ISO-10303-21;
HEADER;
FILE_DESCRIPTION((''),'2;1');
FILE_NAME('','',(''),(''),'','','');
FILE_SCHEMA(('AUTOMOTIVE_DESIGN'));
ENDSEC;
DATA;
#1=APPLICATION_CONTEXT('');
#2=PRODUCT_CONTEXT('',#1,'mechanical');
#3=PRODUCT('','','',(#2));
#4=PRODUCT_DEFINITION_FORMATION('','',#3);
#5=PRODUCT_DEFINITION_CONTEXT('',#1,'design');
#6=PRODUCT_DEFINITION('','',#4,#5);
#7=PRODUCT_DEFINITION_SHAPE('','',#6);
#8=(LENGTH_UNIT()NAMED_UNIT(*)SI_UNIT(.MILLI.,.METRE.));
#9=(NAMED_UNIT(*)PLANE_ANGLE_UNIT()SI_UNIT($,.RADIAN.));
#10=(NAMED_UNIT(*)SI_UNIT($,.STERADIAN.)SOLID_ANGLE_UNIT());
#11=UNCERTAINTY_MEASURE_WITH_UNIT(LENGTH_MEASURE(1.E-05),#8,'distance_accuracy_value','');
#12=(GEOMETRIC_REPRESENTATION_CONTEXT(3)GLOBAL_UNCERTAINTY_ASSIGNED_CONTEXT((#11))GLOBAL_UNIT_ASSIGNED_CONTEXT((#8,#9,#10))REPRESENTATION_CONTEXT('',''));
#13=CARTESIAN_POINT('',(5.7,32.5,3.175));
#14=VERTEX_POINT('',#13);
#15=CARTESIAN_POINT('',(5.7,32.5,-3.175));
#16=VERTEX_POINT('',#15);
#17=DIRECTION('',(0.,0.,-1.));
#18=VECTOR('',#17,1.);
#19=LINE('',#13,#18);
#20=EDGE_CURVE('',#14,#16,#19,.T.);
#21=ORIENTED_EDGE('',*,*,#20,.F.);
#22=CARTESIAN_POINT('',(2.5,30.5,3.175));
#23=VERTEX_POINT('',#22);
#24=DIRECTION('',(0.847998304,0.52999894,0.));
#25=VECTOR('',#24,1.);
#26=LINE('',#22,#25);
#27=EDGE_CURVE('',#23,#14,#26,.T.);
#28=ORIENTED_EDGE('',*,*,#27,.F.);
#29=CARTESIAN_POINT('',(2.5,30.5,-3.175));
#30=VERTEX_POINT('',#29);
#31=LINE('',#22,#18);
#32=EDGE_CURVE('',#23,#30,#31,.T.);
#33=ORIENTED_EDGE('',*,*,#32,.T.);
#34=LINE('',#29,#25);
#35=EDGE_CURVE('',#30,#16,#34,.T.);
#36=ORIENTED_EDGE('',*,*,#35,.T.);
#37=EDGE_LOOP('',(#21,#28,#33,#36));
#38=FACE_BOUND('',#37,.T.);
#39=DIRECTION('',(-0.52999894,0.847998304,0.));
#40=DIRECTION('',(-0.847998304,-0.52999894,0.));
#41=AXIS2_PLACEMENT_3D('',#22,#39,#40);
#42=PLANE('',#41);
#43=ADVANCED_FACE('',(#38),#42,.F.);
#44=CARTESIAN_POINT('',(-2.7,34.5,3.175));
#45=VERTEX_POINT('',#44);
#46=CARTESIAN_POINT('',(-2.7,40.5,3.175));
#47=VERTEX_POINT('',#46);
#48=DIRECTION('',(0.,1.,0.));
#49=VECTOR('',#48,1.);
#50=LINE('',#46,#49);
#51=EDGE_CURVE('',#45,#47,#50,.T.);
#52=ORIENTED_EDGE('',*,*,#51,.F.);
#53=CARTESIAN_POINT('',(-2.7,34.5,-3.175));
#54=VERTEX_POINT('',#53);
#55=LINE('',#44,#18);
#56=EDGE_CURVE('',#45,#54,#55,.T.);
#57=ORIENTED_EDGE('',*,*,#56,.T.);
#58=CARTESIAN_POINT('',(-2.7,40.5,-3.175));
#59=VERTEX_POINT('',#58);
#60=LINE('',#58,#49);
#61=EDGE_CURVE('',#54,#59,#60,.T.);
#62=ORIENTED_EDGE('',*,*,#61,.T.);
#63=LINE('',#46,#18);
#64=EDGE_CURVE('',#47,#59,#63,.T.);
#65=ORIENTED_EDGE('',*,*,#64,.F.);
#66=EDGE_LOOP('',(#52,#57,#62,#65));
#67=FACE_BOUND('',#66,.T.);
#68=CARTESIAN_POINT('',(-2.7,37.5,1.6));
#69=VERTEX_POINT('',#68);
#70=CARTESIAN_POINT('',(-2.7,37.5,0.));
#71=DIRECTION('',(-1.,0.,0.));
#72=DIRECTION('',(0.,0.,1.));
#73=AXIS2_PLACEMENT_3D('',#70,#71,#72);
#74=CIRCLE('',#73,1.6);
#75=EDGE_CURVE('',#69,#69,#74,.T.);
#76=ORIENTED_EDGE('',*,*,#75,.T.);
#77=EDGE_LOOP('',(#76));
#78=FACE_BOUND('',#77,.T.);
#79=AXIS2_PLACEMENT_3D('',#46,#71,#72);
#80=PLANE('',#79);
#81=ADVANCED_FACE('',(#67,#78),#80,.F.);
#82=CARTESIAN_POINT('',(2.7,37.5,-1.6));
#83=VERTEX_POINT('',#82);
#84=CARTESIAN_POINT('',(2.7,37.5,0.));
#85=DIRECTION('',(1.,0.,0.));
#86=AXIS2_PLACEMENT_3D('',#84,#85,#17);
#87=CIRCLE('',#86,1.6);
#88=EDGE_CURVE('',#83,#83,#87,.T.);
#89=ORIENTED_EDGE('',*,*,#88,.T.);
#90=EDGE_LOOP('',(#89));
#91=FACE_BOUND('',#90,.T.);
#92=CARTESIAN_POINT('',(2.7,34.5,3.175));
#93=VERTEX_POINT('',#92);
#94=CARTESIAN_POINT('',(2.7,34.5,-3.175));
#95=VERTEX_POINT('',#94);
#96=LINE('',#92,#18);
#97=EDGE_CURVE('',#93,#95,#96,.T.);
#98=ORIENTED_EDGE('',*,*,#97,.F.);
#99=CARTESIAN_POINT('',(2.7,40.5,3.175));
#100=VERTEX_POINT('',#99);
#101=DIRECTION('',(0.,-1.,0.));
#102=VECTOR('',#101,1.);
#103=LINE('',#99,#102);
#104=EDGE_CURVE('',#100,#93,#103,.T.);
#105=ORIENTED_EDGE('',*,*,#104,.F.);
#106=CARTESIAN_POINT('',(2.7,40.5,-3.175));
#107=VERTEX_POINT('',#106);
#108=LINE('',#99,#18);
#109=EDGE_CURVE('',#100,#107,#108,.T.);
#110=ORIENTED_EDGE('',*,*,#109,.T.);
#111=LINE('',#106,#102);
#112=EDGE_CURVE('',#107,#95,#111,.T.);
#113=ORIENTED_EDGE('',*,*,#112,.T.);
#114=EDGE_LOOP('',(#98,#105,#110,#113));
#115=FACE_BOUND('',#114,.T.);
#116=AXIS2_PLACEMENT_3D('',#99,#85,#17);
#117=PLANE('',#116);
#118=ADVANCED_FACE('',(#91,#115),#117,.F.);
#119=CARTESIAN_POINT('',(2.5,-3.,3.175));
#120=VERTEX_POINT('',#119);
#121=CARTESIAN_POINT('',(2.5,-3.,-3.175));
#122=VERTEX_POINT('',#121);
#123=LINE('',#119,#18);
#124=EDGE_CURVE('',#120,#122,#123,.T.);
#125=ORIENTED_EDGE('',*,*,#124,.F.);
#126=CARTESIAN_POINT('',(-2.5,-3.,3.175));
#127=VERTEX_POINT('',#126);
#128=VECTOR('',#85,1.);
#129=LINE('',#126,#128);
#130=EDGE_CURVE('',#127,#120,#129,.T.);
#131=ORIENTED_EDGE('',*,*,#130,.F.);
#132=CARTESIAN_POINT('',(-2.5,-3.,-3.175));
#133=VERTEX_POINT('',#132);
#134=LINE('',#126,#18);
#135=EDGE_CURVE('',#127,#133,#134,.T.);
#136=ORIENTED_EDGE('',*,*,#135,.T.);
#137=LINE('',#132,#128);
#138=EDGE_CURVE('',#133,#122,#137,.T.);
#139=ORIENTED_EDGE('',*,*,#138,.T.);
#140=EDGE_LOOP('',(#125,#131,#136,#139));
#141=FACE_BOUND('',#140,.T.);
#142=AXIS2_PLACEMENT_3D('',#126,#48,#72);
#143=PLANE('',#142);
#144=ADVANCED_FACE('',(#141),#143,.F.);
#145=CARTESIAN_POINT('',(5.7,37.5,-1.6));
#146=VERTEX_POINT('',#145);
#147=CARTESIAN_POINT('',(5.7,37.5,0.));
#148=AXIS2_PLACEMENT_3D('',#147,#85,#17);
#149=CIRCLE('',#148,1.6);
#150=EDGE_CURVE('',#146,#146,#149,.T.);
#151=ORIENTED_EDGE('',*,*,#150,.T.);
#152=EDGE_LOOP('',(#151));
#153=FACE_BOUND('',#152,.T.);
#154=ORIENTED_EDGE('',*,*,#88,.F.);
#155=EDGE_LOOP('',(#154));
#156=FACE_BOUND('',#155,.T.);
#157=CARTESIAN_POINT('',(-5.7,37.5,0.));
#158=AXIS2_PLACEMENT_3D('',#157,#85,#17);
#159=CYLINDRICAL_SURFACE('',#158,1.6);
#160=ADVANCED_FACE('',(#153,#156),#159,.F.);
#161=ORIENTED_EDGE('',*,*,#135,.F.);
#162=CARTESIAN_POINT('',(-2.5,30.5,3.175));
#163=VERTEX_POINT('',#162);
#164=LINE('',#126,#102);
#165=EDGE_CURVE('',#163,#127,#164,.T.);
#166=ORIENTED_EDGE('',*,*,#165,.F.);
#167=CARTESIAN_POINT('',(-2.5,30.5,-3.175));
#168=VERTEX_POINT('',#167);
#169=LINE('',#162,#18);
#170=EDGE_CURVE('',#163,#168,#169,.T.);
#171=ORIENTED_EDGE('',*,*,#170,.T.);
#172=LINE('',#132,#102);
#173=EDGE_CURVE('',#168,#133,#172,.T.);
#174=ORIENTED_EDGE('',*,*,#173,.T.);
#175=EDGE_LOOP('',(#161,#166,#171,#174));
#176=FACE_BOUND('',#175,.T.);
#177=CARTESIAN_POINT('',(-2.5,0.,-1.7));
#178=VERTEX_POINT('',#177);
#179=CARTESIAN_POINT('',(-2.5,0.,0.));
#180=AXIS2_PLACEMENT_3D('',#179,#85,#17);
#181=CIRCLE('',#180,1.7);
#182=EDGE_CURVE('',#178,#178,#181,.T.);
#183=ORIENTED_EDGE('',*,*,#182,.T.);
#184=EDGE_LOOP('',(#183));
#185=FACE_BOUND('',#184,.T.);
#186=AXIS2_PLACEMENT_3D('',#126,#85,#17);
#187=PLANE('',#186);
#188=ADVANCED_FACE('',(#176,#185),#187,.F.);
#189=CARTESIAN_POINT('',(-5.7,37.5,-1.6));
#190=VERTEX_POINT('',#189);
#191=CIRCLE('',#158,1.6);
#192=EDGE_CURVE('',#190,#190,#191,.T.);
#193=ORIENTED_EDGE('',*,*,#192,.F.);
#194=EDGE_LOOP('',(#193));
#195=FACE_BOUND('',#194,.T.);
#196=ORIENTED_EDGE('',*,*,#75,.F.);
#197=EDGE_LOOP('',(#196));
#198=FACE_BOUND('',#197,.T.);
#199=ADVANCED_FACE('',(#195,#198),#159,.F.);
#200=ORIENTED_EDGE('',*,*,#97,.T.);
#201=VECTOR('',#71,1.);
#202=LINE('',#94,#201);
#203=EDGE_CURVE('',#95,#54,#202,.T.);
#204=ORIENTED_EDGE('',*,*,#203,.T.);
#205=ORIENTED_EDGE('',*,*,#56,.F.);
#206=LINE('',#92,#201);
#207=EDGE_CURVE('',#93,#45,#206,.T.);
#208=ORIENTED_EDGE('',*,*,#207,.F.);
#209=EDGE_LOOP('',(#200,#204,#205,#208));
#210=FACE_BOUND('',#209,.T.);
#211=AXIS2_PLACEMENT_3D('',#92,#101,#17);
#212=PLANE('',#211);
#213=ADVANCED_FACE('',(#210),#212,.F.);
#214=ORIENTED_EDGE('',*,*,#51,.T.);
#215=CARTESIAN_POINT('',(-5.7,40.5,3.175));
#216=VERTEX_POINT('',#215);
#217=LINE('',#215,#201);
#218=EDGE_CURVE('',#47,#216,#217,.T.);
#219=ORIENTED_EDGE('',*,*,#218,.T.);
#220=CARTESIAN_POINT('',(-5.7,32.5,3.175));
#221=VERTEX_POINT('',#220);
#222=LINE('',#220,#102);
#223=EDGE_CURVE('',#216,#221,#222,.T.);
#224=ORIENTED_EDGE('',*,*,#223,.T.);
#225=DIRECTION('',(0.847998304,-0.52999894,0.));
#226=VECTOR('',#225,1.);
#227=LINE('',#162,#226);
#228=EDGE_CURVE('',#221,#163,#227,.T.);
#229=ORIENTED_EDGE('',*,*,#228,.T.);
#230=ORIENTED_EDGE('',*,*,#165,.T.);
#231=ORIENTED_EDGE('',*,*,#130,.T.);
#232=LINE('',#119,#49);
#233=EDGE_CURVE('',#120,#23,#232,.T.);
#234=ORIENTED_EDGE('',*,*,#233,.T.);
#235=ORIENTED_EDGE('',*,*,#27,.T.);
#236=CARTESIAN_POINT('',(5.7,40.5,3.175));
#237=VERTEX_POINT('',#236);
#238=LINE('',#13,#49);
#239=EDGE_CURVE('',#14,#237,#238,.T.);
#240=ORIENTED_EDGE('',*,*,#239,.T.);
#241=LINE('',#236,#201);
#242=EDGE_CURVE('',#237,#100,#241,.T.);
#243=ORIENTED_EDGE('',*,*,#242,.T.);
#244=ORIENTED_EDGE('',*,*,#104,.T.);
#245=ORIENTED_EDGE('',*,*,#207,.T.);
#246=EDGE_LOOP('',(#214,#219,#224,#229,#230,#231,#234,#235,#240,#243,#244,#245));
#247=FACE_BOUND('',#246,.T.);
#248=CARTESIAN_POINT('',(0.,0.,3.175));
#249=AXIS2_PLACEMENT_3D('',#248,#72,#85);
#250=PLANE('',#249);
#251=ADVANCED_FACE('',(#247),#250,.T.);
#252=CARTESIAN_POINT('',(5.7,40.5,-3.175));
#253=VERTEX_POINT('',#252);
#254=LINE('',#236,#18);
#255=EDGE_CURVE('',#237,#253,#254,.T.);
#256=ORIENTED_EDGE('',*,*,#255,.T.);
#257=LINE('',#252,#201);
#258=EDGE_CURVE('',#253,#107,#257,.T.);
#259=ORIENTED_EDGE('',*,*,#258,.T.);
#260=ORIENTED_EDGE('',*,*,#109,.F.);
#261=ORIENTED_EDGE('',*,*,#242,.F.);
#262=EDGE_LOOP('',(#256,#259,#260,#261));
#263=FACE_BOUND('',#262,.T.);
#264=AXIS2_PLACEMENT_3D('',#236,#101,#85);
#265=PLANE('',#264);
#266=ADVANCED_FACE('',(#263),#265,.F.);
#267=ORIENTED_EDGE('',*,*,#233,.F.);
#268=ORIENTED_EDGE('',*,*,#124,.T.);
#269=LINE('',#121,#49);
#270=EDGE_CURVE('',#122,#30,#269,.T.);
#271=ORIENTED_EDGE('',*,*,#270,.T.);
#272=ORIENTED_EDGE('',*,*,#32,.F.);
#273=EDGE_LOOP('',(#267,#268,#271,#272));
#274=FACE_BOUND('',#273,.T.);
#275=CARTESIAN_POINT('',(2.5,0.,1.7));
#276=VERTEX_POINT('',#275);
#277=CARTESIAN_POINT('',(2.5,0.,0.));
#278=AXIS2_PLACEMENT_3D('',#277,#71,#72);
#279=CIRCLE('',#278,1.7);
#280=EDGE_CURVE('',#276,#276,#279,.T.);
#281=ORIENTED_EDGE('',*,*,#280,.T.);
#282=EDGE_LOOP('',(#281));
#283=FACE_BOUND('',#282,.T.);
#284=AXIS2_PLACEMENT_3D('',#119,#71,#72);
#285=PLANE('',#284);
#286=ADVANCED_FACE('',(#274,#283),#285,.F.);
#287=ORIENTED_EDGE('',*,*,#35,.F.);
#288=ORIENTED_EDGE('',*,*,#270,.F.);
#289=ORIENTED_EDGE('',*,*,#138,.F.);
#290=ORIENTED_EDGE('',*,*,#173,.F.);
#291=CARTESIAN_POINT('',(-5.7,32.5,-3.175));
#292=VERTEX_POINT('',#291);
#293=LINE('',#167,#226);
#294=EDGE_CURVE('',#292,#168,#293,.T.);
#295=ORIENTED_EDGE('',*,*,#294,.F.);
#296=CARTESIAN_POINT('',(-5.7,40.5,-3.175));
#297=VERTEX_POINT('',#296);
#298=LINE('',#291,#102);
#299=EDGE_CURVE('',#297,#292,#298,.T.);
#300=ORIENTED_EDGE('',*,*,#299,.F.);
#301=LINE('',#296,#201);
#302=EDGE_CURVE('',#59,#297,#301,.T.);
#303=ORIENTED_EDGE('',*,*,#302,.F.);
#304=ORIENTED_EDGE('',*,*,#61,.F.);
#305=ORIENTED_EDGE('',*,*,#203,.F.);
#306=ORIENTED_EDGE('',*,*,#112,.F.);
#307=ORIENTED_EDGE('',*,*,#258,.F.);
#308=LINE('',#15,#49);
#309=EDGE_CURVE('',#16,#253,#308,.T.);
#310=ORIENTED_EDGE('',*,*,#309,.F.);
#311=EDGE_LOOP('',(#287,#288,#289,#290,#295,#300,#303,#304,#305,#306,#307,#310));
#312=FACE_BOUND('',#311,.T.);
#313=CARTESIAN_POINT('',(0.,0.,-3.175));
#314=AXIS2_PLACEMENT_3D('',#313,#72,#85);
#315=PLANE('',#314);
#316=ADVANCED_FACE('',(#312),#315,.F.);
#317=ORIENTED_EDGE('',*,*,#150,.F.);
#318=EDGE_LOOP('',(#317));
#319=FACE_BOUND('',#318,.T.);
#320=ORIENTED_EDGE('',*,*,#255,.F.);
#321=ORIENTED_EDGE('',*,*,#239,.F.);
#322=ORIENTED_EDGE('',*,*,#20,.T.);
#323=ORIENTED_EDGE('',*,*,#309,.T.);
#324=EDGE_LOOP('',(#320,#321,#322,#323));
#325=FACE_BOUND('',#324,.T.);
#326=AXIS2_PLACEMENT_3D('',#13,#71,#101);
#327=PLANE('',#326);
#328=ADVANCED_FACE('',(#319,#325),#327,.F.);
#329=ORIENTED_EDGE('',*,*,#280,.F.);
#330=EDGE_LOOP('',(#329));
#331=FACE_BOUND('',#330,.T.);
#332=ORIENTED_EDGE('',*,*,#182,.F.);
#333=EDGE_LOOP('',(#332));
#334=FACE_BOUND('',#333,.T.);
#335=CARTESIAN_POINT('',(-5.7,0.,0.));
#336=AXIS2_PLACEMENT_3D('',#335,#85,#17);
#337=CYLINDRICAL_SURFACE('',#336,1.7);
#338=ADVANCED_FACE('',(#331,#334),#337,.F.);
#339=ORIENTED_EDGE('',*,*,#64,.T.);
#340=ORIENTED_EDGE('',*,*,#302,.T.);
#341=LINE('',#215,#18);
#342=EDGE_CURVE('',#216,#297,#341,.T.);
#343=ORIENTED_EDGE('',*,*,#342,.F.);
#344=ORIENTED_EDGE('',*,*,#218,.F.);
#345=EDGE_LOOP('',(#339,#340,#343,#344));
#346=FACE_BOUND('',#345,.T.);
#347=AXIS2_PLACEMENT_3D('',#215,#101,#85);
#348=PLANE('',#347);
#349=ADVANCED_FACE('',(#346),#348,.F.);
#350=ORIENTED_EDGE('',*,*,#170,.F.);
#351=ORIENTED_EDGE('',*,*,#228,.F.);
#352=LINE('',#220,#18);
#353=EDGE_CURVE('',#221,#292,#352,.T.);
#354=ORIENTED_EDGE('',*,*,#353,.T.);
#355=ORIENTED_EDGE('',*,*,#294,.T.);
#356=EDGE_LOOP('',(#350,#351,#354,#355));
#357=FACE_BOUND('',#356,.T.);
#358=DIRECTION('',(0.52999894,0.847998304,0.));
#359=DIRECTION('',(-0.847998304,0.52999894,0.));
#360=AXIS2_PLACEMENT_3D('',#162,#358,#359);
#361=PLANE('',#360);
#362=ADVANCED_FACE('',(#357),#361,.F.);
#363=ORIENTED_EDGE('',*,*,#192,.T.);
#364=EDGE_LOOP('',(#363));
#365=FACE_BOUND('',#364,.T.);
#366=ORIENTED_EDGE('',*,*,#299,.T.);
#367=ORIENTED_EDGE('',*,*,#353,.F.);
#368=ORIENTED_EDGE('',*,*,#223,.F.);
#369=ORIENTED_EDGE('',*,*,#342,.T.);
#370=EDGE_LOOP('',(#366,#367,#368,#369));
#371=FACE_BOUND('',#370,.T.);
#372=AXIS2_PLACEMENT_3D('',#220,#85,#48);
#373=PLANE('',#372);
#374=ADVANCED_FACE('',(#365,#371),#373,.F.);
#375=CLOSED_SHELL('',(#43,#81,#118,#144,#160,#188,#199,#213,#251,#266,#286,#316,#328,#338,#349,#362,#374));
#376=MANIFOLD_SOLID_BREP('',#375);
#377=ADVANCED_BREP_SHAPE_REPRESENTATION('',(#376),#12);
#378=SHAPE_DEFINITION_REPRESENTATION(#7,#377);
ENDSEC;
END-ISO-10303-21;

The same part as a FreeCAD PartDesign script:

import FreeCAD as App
import Part
import Sketcher

V = App.Vector
Q = App.Units.Quantity

doc = App.newDocument("Part")
body = doc.addObject("PartDesign::Body", "Body")

# Sketch on XY plane
sketch1 = body.newObject("Sketcher::SketchObject", "Sketch")
sketch1.AttachmentSupport = (doc.getObject("XY_Plane"), [""])
sketch1.MapMode = "FlatFace"
sketch1.addGeometry([
    Part.LineSegment(V(-2.5, -3, 0), V(2.5, -3, 0)),  # 0
    Part.LineSegment(V(2.5, -3, 0), V(2.5, 30.5, 0)),  # 1
    Part.LineSegment(V(2.5, 30.5, 0), V(5.7, 32.5, 0)),  # 2
    Part.LineSegment(V(5.7, 32.5, 0), V(5.7, 40.5, 0)),  # 3
    Part.LineSegment(V(5.7, 40.5, 0), V(2.7, 40.5, 0)),  # 4
    Part.LineSegment(V(2.7, 40.5, 0), V(2.7, 34.5, 0)),  # 5
    Part.LineSegment(V(2.7, 34.5, 0), V(-2.7, 34.5, 0)),  # 6
    Part.LineSegment(V(-2.7, 34.5, 0), V(-2.7, 40.5, 0)),  # 7
    Part.LineSegment(V(-2.7, 40.5, 0), V(-5.7, 40.5, 0)),  # 8
    Part.LineSegment(V(-5.7, 40.5, 0), V(-5.7, 32.5, 0)),  # 9
    Part.LineSegment(V(-5.7, 32.5, 0), V(-2.5, 30.5, 0)),  # 10
    Part.LineSegment(V(-2.5, 30.5, 0), V(-2.5, -3, 0)),  # 11
], False)
sketch1.addConstraint([
    Sketcher.Constraint("Coincident", 0, 2, 1, 1),
    Sketcher.Constraint("Coincident", 1, 2, 2, 1),
    Sketcher.Constraint("Coincident", 2, 2, 3, 1),
    Sketcher.Constraint("Coincident", 3, 2, 4, 1),
    Sketcher.Constraint("Coincident", 4, 2, 5, 1),
    Sketcher.Constraint("Coincident", 5, 2, 6, 1),
    Sketcher.Constraint("Coincident", 6, 2, 7, 1),
    Sketcher.Constraint("Coincident", 7, 2, 8, 1),
    Sketcher.Constraint("Coincident", 8, 2, 9, 1),
    Sketcher.Constraint("Coincident", 9, 2, 10, 1),
    Sketcher.Constraint("Coincident", 10, 2, 11, 1),
    Sketcher.Constraint("Coincident", 11, 2, 0, 1),
    Sketcher.Constraint("Horizontal", 0),
    Sketcher.Constraint("Vertical", 1),
    Sketcher.Constraint("Vertical", 3),
    Sketcher.Constraint("Horizontal", 4),
    Sketcher.Constraint("Vertical", 5),
    Sketcher.Constraint("Horizontal", 6),
    Sketcher.Constraint("Vertical", 7),
    Sketcher.Constraint("Horizontal", 8),
    Sketcher.Constraint("Vertical", 9),
    Sketcher.Constraint("Vertical", 11),
    Sketcher.Constraint("Symmetric", 4, 2, 7, 2, -2),
    Sketcher.Constraint("Symmetric", 2, 2, 9, 2, -2),
    Sketcher.Constraint("Symmetric", 1, 2, 10, 2, -2),
    Sketcher.Constraint("DistanceX", 0, 1, 0, 2, Q("5 mm")),
    Sketcher.Constraint("DistanceX", 4, 2, 4, 1, Q("3 mm")),
    Sketcher.Constraint("DistanceY", 3, 1, 3, 2, Q("8 mm")),
    Sketcher.Constraint("DistanceY", 5, 2, 5, 1, Q("6 mm")),
    Sketcher.Constraint("DistanceX", 6, 2, 6, 1, Q("5.4 mm")),
    Sketcher.Constraint("DistanceY", 1, 1, 1, 2, Q("33.5 mm")),
    Sketcher.Constraint("DistanceY", 0, 2, -1, 1, Q("3 mm")),
    Sketcher.Constraint("DistanceY", 1, 2, 2, 2, Q("2 mm")),
])
pad1 = body.newObject("PartDesign::Pad", "Pad")
pad1.Profile = sketch1
pad1.Length = 6.35
pad1.Midplane = True

# Sketch on YZ plane
sketch2 = body.newObject("Sketcher::SketchObject", "Sketch001")
sketch2.AttachmentSupport = (doc.getObject("YZ_Plane"), [""])
sketch2.MapMode = "FlatFace"
sketch2.addGeometry([
    Part.Circle(V(0, 0, 0), V(0, 0, 1), 1.7),
    Part.Circle(V(37.5, 0, 0), V(0, 0, 1), 1.6),
], False)
sketch2.addConstraint([
    Sketcher.Constraint("Coincident", 0, 3, -1, 1),
    Sketcher.Constraint("PointOnObject", 1, 3, -1),
    Sketcher.Constraint("Diameter", 0, Q("3.4 mm")),
    Sketcher.Constraint("Diameter", 1, Q("3.2 mm")),
    Sketcher.Constraint("DistanceX", -1, 1, 1, 3, Q("37.5 mm")),
])
pocket1 = body.newObject("PartDesign::Pocket", "Pocket")
pocket1.Profile = sketch2
pocket1.Type = "ThroughAll"
pocket1.Midplane = True

doc.recompute()
